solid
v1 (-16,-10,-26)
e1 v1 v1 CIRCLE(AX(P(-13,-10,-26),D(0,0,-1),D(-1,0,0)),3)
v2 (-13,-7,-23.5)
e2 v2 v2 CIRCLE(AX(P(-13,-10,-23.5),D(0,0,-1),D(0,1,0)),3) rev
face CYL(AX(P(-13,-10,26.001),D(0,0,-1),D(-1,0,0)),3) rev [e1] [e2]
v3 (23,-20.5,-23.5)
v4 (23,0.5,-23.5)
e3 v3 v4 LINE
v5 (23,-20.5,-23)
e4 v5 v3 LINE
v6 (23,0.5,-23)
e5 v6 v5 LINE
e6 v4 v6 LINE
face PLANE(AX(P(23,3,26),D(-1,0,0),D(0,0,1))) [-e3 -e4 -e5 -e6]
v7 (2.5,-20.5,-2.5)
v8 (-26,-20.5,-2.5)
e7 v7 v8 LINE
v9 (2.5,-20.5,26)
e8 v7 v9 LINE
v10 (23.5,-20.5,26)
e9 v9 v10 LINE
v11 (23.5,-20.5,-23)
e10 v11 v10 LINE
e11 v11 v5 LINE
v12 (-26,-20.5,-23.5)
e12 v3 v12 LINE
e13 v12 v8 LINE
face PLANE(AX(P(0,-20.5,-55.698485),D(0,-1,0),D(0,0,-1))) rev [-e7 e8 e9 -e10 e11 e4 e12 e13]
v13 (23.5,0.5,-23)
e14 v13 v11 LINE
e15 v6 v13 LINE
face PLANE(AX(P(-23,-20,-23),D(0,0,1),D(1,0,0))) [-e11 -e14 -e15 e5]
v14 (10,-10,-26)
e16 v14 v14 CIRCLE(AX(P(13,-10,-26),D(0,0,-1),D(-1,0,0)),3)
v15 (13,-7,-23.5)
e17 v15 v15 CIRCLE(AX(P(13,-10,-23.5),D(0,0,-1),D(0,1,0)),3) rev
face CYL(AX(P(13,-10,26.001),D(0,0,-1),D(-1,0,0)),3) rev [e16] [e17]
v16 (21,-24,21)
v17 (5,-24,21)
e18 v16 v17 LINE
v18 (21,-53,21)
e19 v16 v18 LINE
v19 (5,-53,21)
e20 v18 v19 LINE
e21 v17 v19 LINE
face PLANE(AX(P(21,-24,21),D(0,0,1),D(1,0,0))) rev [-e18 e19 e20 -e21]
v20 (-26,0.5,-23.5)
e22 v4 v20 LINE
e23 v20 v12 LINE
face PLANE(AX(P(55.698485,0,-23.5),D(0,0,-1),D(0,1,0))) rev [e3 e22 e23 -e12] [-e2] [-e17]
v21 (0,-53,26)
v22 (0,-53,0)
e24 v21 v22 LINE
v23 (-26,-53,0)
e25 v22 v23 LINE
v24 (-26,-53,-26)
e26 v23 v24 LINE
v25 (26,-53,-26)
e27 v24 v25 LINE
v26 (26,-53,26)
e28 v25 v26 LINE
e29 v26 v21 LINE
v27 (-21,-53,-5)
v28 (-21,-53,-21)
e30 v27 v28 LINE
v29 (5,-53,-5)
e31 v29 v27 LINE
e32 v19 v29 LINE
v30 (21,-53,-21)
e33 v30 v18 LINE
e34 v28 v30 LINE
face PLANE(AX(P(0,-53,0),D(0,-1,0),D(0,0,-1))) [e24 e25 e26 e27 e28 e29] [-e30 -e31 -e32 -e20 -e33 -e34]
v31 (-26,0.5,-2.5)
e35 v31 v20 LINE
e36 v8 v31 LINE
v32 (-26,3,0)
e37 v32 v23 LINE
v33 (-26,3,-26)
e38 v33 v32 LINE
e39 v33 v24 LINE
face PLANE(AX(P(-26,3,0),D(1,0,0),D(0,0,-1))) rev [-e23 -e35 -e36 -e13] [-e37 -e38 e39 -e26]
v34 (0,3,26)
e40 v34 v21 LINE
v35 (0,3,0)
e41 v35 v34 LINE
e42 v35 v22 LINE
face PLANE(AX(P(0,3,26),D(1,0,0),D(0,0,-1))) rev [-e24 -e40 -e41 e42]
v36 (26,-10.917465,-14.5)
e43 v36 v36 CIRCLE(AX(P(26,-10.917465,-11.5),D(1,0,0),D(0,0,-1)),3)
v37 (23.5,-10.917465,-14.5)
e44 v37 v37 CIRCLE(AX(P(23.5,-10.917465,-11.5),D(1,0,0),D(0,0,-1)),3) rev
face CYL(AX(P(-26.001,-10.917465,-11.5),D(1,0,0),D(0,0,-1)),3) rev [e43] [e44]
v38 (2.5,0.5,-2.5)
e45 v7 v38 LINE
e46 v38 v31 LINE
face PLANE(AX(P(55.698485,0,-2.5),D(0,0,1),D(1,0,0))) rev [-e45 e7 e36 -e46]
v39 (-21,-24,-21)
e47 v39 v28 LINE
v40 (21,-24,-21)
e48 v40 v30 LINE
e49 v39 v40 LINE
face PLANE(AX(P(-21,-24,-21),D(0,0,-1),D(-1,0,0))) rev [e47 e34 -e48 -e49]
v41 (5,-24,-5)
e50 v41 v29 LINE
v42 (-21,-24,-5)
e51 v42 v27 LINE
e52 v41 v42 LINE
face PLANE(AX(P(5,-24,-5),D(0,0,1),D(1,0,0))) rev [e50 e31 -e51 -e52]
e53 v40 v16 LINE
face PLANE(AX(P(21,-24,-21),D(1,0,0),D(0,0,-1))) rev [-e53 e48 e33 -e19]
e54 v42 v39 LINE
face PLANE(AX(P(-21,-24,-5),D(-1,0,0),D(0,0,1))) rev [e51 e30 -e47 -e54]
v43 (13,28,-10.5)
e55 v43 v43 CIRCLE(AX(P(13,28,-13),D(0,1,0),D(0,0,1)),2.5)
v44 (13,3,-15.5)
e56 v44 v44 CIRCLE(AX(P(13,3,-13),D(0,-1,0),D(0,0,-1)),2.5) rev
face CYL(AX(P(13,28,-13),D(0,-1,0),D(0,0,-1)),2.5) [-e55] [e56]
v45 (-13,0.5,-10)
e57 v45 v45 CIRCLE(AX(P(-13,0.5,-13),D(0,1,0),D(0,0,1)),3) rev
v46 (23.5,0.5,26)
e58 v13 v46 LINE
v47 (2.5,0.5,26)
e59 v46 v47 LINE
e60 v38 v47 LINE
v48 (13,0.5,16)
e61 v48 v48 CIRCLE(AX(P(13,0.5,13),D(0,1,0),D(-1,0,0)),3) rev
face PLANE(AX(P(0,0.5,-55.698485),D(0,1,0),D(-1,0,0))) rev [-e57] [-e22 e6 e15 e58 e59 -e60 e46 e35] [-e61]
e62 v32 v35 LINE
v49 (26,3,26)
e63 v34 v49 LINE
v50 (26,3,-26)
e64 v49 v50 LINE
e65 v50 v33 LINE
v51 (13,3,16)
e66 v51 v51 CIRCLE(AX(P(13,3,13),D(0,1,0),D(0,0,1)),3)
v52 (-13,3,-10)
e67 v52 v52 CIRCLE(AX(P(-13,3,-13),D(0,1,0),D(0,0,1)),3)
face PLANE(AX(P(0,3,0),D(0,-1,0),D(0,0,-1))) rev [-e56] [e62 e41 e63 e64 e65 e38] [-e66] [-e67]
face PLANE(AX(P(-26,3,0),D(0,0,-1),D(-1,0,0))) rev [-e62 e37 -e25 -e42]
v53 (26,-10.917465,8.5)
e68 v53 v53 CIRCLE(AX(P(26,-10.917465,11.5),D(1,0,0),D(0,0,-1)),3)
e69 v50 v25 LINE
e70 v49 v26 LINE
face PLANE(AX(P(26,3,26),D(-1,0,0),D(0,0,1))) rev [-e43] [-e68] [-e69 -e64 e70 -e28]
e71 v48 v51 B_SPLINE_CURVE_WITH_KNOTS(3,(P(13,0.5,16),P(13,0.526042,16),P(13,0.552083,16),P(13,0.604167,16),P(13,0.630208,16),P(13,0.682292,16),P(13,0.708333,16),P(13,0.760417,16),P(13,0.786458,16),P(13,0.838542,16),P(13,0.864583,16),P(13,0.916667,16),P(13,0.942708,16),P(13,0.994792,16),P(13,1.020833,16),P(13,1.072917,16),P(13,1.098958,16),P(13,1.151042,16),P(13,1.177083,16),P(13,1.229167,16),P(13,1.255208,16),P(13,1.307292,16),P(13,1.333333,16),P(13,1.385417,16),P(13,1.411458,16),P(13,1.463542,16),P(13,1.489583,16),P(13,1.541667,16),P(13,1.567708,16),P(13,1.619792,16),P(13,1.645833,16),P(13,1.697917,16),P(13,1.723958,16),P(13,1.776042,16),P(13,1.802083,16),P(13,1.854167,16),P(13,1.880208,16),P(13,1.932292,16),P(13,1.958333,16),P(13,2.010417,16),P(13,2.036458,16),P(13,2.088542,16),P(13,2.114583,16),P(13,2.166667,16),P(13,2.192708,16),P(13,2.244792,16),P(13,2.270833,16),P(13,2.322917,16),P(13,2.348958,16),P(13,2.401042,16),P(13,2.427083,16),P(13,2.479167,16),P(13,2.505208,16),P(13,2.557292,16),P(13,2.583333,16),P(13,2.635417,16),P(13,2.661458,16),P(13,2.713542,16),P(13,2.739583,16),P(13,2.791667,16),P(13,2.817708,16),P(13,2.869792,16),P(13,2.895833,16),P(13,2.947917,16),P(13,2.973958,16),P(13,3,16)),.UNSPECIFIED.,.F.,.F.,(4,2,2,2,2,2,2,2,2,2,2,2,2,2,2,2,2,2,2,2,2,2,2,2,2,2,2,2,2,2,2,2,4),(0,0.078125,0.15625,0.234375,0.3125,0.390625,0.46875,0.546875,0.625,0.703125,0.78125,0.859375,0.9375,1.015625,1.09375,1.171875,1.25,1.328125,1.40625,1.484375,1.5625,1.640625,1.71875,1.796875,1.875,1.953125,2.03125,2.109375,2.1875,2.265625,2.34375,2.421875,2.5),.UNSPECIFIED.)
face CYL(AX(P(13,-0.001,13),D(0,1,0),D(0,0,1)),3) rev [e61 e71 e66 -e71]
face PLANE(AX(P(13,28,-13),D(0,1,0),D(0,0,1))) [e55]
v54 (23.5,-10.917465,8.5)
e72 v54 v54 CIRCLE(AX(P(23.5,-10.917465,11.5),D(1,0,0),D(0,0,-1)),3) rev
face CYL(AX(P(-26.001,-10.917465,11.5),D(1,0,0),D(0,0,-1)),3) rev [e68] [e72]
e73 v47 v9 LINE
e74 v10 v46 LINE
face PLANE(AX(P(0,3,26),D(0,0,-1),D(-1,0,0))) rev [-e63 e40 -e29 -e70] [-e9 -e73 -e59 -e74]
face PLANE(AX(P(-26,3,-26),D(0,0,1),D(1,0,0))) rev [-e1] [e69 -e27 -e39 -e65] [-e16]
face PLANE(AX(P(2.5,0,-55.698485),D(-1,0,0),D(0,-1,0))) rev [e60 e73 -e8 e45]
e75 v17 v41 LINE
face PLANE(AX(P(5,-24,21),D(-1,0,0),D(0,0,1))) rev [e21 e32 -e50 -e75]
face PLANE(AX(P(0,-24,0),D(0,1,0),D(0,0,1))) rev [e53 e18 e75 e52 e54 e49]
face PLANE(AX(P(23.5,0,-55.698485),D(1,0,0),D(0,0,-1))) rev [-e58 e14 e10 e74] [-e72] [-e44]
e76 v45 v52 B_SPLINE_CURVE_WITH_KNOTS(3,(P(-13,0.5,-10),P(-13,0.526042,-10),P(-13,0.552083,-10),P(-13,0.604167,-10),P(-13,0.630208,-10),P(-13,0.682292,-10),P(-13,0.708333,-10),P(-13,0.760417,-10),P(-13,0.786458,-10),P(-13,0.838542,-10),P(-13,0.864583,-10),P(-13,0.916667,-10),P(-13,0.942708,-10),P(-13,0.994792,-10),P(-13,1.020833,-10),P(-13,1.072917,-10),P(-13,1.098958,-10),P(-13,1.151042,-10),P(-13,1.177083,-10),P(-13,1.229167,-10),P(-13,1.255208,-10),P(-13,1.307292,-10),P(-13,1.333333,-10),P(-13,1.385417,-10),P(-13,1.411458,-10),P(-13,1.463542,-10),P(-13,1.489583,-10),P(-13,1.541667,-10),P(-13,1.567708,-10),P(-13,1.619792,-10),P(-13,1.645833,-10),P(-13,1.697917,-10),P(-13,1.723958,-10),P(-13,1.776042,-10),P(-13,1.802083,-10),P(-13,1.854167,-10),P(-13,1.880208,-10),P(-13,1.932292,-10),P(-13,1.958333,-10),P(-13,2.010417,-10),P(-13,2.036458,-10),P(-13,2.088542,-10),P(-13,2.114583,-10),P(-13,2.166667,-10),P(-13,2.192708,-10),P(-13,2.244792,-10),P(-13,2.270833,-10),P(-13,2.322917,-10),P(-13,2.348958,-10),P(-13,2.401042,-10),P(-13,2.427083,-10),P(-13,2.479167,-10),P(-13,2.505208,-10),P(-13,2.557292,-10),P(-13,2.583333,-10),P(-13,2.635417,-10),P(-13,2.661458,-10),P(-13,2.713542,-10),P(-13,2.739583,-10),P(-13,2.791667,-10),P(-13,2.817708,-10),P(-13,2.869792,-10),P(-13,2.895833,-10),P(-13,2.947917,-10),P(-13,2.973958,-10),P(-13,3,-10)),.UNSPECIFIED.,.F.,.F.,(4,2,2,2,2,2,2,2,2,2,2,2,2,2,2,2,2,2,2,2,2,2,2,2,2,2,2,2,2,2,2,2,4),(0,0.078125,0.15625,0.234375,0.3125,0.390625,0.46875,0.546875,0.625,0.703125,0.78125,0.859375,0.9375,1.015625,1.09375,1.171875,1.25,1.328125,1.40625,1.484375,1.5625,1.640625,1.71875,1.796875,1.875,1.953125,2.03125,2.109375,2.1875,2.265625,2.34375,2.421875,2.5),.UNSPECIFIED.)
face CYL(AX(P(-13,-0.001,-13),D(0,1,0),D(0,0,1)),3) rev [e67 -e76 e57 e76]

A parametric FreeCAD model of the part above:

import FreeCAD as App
import Part
import Sketcher

V = App.Vector
Q = App.Units.Quantity


def add_polygon(sketch, points):
    """Adds a closed chain of lines whose ends are joined by coincident constraints."""
    first, n = sketch.GeometryCount, len(points)
    for a, b in zip(points, points[1:] + points[:1]):
        sketch.addGeometry(Part.LineSegment(App.Vector(*a, 0), App.Vector(*b, 0)), False)
    for i in range(n):
        sketch.addConstraint(Sketcher.Constraint("Coincident", first + i, 2, first + (i + 1) % n, 1))

doc = App.newDocument("Part")
params = doc.addObject("Spreadsheet::Sheet", "Params")
for row, (alias, value) in enumerate([
    ("sketch1_width", "26 mm"),
    ("pad1_length", "3 mm"),
    ("sketch2_diameter", "5 mm"),
    ("pad2_length", "25 mm"),
    ("sketch3_diameter", "6 mm"),
    ("sketch4_diameter", "6 mm"),
    ("sketch5_width", "26 mm"),
    ("sketch5_width2", "46 mm"),
    ("pad3_length", "20 mm"),
    ("sketch6_width", "52 mm"),
    ("pad4_length", "3 mm"),
    ("sketch7_width", "21 mm"),
    ("pocket3_length", "49 mm"),
    ("sketch8_width", "21 mm"),
    ("pocket4_length", "49 mm"),
    ("sketch9_width", "52 mm"),
    ("pad5_length", "30 mm"),
    ("sketch10_diameter", "6 mm"),
    ("sketch11_diameter", "6 mm"),
    ("sketch12_diameter", "6 mm"),
    ("sketch13_diameter", "6 mm"),
    ("sketch14_width", "26 mm"),
    ("sketch14_width2", "42 mm"),
    ("sketch14_width3", "75.88 mm"),
    ("pocket9_length", "29 mm"),
], start=1):
    params.set(f"A{row}", alias)
    params.set(f"B{row}", "=" + value)
    params.setAlias(f"B{row}", alias)

body = doc.addObject("PartDesign::Body", "Body")

# Sketch on XZ plane
sketch1 = body.newObject("Sketcher::SketchObject", "Sketch")
sketch1.AttachmentSupport = (doc.getObject("XZ_Plane"), [""])
sketch1.MapMode = "FlatFace"
add_polygon(sketch1, [(0, 26), (26, 26), (26, -26), (-26, -26), (-26, 0), (0, 0)])  # lines 0-5
sketch1.addConstraint([
    Sketcher.Constraint("Horizontal", 0),
    Sketcher.Constraint("Vertical", 1),
    Sketcher.Constraint("Horizontal", 2),
    Sketcher.Constraint("Vertical", 3),
    Sketcher.Constraint("Horizontal", 4),
    Sketcher.Constraint("Vertical", 5),
    Sketcher.Constraint("Coincident", 4, 2, -1, 1),
    Sketcher.Constraint("Symmetric", 0, 2, 2, 2, -1, 1),
    Sketcher.Constraint("Equal", 2, 1),
    Sketcher.Constraint("DistanceX", 0, 1, 0, 2, Q("26 mm")),
])
sketch1.setExpression("Constraints[15]", "Params.sketch1_width")
pad1 = body.newObject("PartDesign::Pad", "Pad")
pad1.Profile = sketch1
pad1.setExpression("Length", "Params.pad1_length")
pad1.Reversed = True

# Sketch on XZ plane
sketch2 = body.newObject("Sketcher::SketchObject", "Sketch001")
sketch2.AttachmentSupport = (doc.getObject("XZ_Plane"), [""])
sketch2.MapMode = "FlatFace"
sketch2.AttachmentOffset = App.Placement(V(0, 0, -3), App.Rotation())
sketch2.addGeometry(Part.Circle(V(13, -13, 0), V(0, 0, 1), 2.5), False)
sketch2.addConstraint([
    Sketcher.Constraint("Diameter", 0, Q("5 mm")),
    Sketcher.Constraint("DistanceX", -1, 1, 0, 3, Q("13 mm")),
    Sketcher.Constraint("DistanceY", 0, 3, -1, 1, Q("13 mm")),
])
sketch2.setExpression("Constraints[0]", "Params.sketch2_diameter")
pad2 = body.newObject("PartDesign::Pad", "Pad001")
pad2.Profile = sketch2
pad2.setExpression("Length", "Params.pad2_length")
pad2.Reversed = True

# Sketch on XZ plane
sketch3 = body.newObject("Sketcher::SketchObject", "Sketch002")
sketch3.AttachmentSupport = (doc.getObject("XZ_Plane"), [""])
sketch3.MapMode = "FlatFace"
sketch3.AttachmentOffset = App.Placement(V(0, 0, -3), App.Rotation())
sketch3.addGeometry(Part.Circle(V(-13, -13, 0), V(0, 0, 1), 3), False)
sketch3.addConstraint([
    Sketcher.Constraint("Diameter", 0, Q("6 mm")),
    Sketcher.Constraint("DistanceX", 0, 3, -1, 1, Q("13 mm")),
    Sketcher.Constraint("DistanceY", 0, 3, -1, 1, Q("13 mm")),
])
sketch3.setExpression("Constraints[0]", "Params.sketch3_diameter")
pocket1 = body.newObject("PartDesign::Pocket", "Pocket")
pocket1.Profile = sketch3
pocket1.Type = "UpToFirst"
pocket1.Reversed = True

# Sketch on XZ plane
sketch4 = body.newObject("Sketcher::SketchObject", "Sketch003")
sketch4.AttachmentSupport = (doc.getObject("XZ_Plane"), [""])
sketch4.MapMode = "FlatFace"
sketch4.AttachmentOffset = App.Placement(V(0, 0, -3), App.Rotation())
sketch4.addGeometry(Part.Circle(V(13, 13, 0), V(0, 0, 1), 3), False)
sketch4.addConstraint([
    Sketcher.Constraint("Diameter", 0, Q("6 mm")),
    Sketcher.Constraint("DistanceX", -1, 1, 0, 3, Q("13 mm")),
    Sketcher.Constraint("DistanceY", -1, 1, 0, 3, Q("13 mm")),
])
sketch4.setExpression("Constraints[0]", "Params.sketch4_diameter")
pocket2 = body.newObject("PartDesign::Pocket", "Pocket001")
pocket2.Profile = sketch4
pocket2.Type = "UpToFirst"
pocket2.Reversed = True

# Sketch on XZ plane
sketch5 = body.newObject("Sketcher::SketchObject", "Sketch004")
sketch5.AttachmentSupport = (doc.getObject("XZ_Plane"), [""])
sketch5.MapMode = "FlatFace"
add_polygon(sketch5, [(26, -26), (26, 26), (0, 26), (0, 0), (-26, 0), (-26, -26)])  # lines 0-5
add_polygon(sketch5, [(23, 23), (23, -23), (-23, -23), (-23, -3), (3, -3), (3, 23)])  # lines 6-11
sketch5.addConstraint([
    Sketcher.Constraint("Vertical", 0),
    Sketcher.Constraint("Horizontal", 1),
    Sketcher.Constraint("Vertical", 2),
    Sketcher.Constraint("Horizontal", 3),
    Sketcher.Constraint("Vertical", 4),
    Sketcher.Constraint("Horizontal", 5),
    Sketcher.Constraint("Vertical", 6),
    Sketcher.Constraint("Horizontal", 7),
    Sketcher.Constraint("Vertical", 8),
    Sketcher.Constraint("Horizontal", 9),
    Sketcher.Constraint("Vertical", 10),
    Sketcher.Constraint("Horizontal", 11),
    Sketcher.Constraint("Coincident", 2, 2, -1, 1),
    Sketcher.Constraint("Symmetric", 0, 2, 4, 2, -1, 1),
    Sketcher.Constraint("Symmetric", 7, 2, 11, 2, -1, 1),
    Sketcher.Constraint("Equal", 3, 9),
    Sketcher.Constraint("Equal", 5, 0),
    Sketcher.Constraint("Equal", 7, 6),
    Sketcher.Constraint("Equal", 11, 8),
    Sketcher.Constraint("DistanceX", 1, 2, 1, 1, Q("26 mm")),
    Sketcher.Constraint("DistanceX", 7, 2, 7, 1, Q("46 mm")),
])
sketch5.setExpression("Constraints[31]", "Params.sketch5_width")
sketch5.setExpression("Constraints[32]", "Params.sketch5_width2")
pad3 = body.newObject("PartDesign::Pad", "Pad002")
pad3.Profile = sketch5
pad3.setExpression("Length", "Params.pad3_length")

# Sketch on XZ plane
sketch6 = body.newObject("Sketcher::SketchObject", "Sketch005")
sketch6.AttachmentSupport = (doc.getObject("XZ_Plane"), [""])
sketch6.MapMode = "FlatFace"
sketch6.AttachmentOffset = App.Placement(V(0, 0, 20), App.Rotation())
add_polygon(sketch6, [(-26, -26), (26, -26), (26, 26), (0, 26), (0, 0), (-26, 0)])  # lines 0-5
sketch6.addConstraint([
    Sketcher.Constraint("Horizontal", 0),
    Sketcher.Constraint("Vertical", 1),
    Sketcher.Constraint("Horizontal", 2),
    Sketcher.Constraint("Vertical", 3),
    Sketcher.Constraint("Horizontal", 4),
    Sketcher.Constraint("Vertical", 5),
    Sketcher.Constraint("Coincident", 3, 2, -1, 1),
    Sketcher.Constraint("Symmetric", 1, 2, 5, 2, -1, 1),
    Sketcher.Constraint("Equal", 0, 1),
    Sketcher.Constraint("DistanceX", 0, 1, 0, 2, Q("52 mm")),
])
sketch6.setExpression("Constraints[15]", "Params.sketch6_width")
pad4 = body.newObject("PartDesign::Pad", "Pad003")
pad4.Profile = sketch6
pad4.setExpression("Length", "Params.pad4_length")

# Sketch on XY plane
sketch7 = body.newObject("Sketcher::SketchObject", "Sketch006")
sketch7.AttachmentSupport = (doc.getObject("XY_Plane"), [""])
sketch7.MapMode = "FlatFace"
sketch7.AttachmentOffset = App.Placement(V(0, 0, 26), App.Rotation())
add_polygon(sketch7, [(2, 0), (2, -20), (24, -20), (24, 0)])  # lines 0-3
sketch7.addConstraint([
    Sketcher.Constraint("Vertical", 0),
    Sketcher.Constraint("Horizontal", 1),
    Sketcher.Constraint("Vertical", 2),
    Sketcher.Constraint("Horizontal", 3),
    Sketcher.Constraint("Equal", 3, 0),
    Sketcher.Constraint("DistanceX", 1, 1, 1, 2, Q("21 mm")),
    Sketcher.Constraint("DistanceX", -1, 1, 0, 2, Q("2.5 mm")),
    Sketcher.Constraint("DistanceY", 0, 2, -1, 1, Q("20.5 mm")),
])
sketch7.setExpression("Constraints[9]", "Params.sketch7_width")
pocket3 = body.newObject("PartDesign::Pocket", "Pocket002")
pocket3.Profile = sketch7
pocket3.setExpression("Length", "Params.pocket3_length")

# Sketch on YZ plane
sketch8 = body.newObject("Sketcher::SketchObject", "Sketch007")
sketch8.AttachmentSupport = (doc.getObject("YZ_Plane"), [""])
sketch8.MapMode = "FlatFace"
sketch8.AttachmentOffset = App.Placement(V(0, 0, -26), App.Rotation())
add_polygon(sketch8, [(0, -24), (-20, -24), (-20, -2), (0, -2)])  # lines 0-3
sketch8.addConstraint([
    Sketcher.Constraint("Horizontal", 0),
    Sketcher.Constraint("Vertical", 1),
    Sketcher.Constraint("Horizontal", 2),
    Sketcher.Constraint("Vertical", 3),
    Sketcher.Constraint("Equal", 2, 1),
    Sketcher.Constraint("DistanceX", 0, 2, 0, 1, Q("21 mm")),
    Sketcher.Constraint("DistanceX", 0, 2, -1, 1, Q("20.5 mm")),
    Sketcher.Constraint("DistanceY", 0, 2, -1, 1, Q("23.5 mm")),
])
sketch8.setExpression("Constraints[9]", "Params.sketch8_width")
pocket4 = body.newObject("PartDesign::Pocket", "Pocket003")
pocket4.Profile = sketch8
pocket4.setExpression("Length", "Params.pocket4_length")
pocket4.Reversed = True

# Sketch on XZ plane
sketch9 = body.newObject("Sketcher::SketchObject", "Sketch008")
sketch9.AttachmentSupport = (doc.getObject("XZ_Plane"), [""])
sketch9.MapMode = "FlatFace"
sketch9.AttachmentOffset = App.Placement(V(0, 0, 23), App.Rotation())
add_polygon(sketch9, [(-26, 0), (-26, -26), (26, -26), (26, 26), (0, 26), (0, 0)])  # lines 0-5
sketch9.addConstraint([
    Sketcher.Constraint("Vertical", 0),
    Sketcher.Constraint("Horizontal", 1),
    Sketcher.Constraint("Vertical", 2),
    Sketcher.Constraint("Horizontal", 3),
    Sketcher.Constraint("Vertical", 4),
    Sketcher.Constraint("Horizontal", 5),
    Sketcher.Constraint("Coincident", 4, 2, -1, 1),
    Sketcher.Constraint("Symmetric", 0, 2, 2, 2, -1, 1),
    Sketcher.Constraint("Equal", 5, 0),
    Sketcher.Constraint("DistanceX", 1, 1, 1, 2, Q("52 mm")),
])
sketch9.setExpression("Constraints[15]", "Params.sketch9_width")
pad5 = body.newObject("PartDesign::Pad", "Pad004")
pad5.Profile = sketch9
pad5.setExpression("Length", "Params.pad5_length")

# Sketch on XY plane
sketch10 = body.newObject("Sketcher::SketchObject", "Sketch009")
sketch10.AttachmentSupport = (doc.getObject("XY_Plane"), [""])
sketch10.MapMode = "FlatFace"
sketch10.AttachmentOffset = App.Placement(V(0, 0, -26), App.Rotation())
sketch10.addGeometry(Part.Circle(V(13, -10, 0), V(0, 0, 1), 3), False)
sketch10.addConstraint([
    Sketcher.Constraint("Diameter", 0, Q("6 mm")),
    Sketcher.Constraint("DistanceX", -1, 1, 0, 3, Q("13 mm")),
    Sketcher.Constraint("DistanceY", 0, 3, -1, 1, Q("10 mm")),
])
sketch10.setExpression("Constraints[0]", "Params.sketch10_diameter")
pocket5 = body.newObject("PartDesign::Pocket", "Pocket004")
pocket5.Profile = sketch10
pocket5.Type = "UpToFirst"
pocket5.Reversed = True

# Sketch on XY plane
sketch11 = body.newObject("Sketcher::SketchObject", "Sketch010")
sketch11.AttachmentSupport = (doc.getObject("XY_Plane"), [""])
sketch11.MapMode = "FlatFace"
sketch11.AttachmentOffset = App.Placement(V(0, 0, -26), App.Rotation())
sketch11.addGeometry(Part.Circle(V(-13, -10, 0), V(0, 0, 1), 3), False)
sketch11.addConstraint([
    Sketcher.Constraint("Diameter", 0, Q("6 mm")),
    Sketcher.Constraint("DistanceX", 0, 3, -1, 1, Q("13 mm")),
    Sketcher.Constraint("DistanceY", 0, 3, -1, 1, Q("10 mm")),
])
sketch11.setExpression("Constraints[0]", "Params.sketch11_diameter")
pocket6 = body.newObject("PartDesign::Pocket", "Pocket005")
pocket6.Profile = sketch11
pocket6.Type = "UpToFirst"
pocket6.Reversed = True

# Sketch on YZ plane
sketch12 = body.newObject("Sketcher::SketchObject", "Sketch011")
sketch12.AttachmentSupport = (doc.getObject("YZ_Plane"), [""])
sketch12.MapMode = "FlatFace"
sketch12.AttachmentOffset = App.Placement(V(0, 0, 26), App.Rotation())
sketch12.addGeometry(Part.Circle(V(-10.9, 11.5, 0), V(0, 0, 1), 3), False)
sketch12.addConstraint([
    Sketcher.Constraint("Diameter", 0, Q("6 mm")),
    Sketcher.Constraint("DistanceY", -1, 1, 0, 3, Q("11.5 mm")),
    Sketcher.Constraint("DistanceX", 0, 3, -1, 1, Q("10.917465 mm")),
])
sketch12.setExpression("Constraints[0]", "Params.sketch12_diameter")
pocket7 = body.newObject("PartDesign::Pocket", "Pocket006")
pocket7.Profile = sketch12
pocket7.Type = "UpToFirst"

# Sketch on YZ plane
sketch13 = body.newObject("Sketcher::SketchObject", "Sketch012")
sketch13.AttachmentSupport = (doc.getObject("YZ_Plane"), [""])
sketch13.MapMode = "FlatFace"
sketch13.AttachmentOffset = App.Placement(V(0, 0, 26), App.Rotation())
sketch13.addGeometry(Part.Circle(V(-10.9, -11.5, 0), V(0, 0, 1), 3), False)
sketch13.addConstraint([
    Sketcher.Constraint("Diameter", 0, Q("6 mm")),
    Sketcher.Constraint("DistanceY", 0, 3, -1, 1, Q("11.5 mm")),
    Sketcher.Constraint("DistanceX", 0, 3, -1, 1, Q("10.917465 mm")),
])
sketch13.setExpression("Constraints[0]", "Params.sketch13_diameter")
pocket8 = body.newObject("PartDesign::Pocket", "Pocket007")
pocket8.Profile = sketch13
pocket8.Type = "UpToFirst"

# Sketch on XZ plane
sketch14 = body.newObject("Sketcher::SketchObject", "Sketch013")
sketch14.AttachmentSupport = (doc.getObject("XZ_Plane"), [""])
sketch14.MapMode = "FlatFace"
sketch14.AttachmentOffset = App.Placement(V(0, 0, 53), App.Rotation())
add_polygon(sketch14, [(-38, 38), (-38, -38), (38, -38), (38, 38)])  # lines 0-3
add_polygon(sketch14, [(-26, 0), (0, 0), (0, 26), (26, 26), (26, -26), (-26, -26)])  # lines 4-9
add_polygon(sketch14, [(5, -5), (-21, -5), (-21, -21), (21, -21), (21, 21), (5, 21)])  # lines 10-15
sketch14.addConstraint([
    Sketcher.Constraint("Vertical", 0),
    Sketcher.Constraint("Horizontal", 1),
    Sketcher.Constraint("Vertical", 2),
    Sketcher.Constraint("Horizontal", 3),
    Sketcher.Constraint("Horizontal", 4),
    Sketcher.Constraint("Vertical", 5),
    Sketcher.Constraint("Horizontal", 6),
    Sketcher.Constraint("Vertical", 7),
    Sketcher.Constraint("Horizontal", 8),
    Sketcher.Constraint("Vertical", 9),
    Sketcher.Constraint("Horizontal", 10),
    Sketcher.Constraint("Vertical", 11),
    Sketcher.Constraint("Horizontal", 12),
    Sketcher.Constraint("Vertical", 13),
    Sketcher.Constraint("Horizontal", 14),
    Sketcher.Constraint("Vertical", 15),
    Sketcher.Constraint("Coincident", 4, 2, -1, 1),
    Sketcher.Constraint("Symmetric", 0, 2, 2, 2, -1, 1),
    Sketcher.Constraint("Symmetric", 6, 2, 8, 2, -1, 1),
    Sketcher.Constraint("Symmetric", 11, 2, 13, 2, -1, 1),
    Sketcher.Constraint("Equal", 6, 10),
    Sketcher.Constraint("Equal", 3, 0),
    Sketcher.Constraint("Equal", 10, 5),
    Sketcher.Constraint("Equal", 14, 11),
    Sketcher.Constraint("Equal", 12, 13),
    Sketcher.Constraint("DistanceX", 4, 1, 4, 2, Q("26 mm")),
    Sketcher.Constraint("DistanceX", 12, 1, 12, 2, Q("42 mm")),
    Sketcher.Constraint("DistanceX", 1, 1, 1, 2, Q("75.88 mm")),
])
sketch14.setExpression("Constraints[41]", "Params.sketch14_width")
sketch14.setExpression("Constraints[42]", "Params.sketch14_width2")
sketch14.setExpression("Constraints[43]", "Params.sketch14_width3")
pocket9 = body.newObject("PartDesign::Pocket", "Pocket008")
pocket9.Profile = sketch14
pocket9.setExpression("Length", "Params.pocket9_length")

doc.recompute()
